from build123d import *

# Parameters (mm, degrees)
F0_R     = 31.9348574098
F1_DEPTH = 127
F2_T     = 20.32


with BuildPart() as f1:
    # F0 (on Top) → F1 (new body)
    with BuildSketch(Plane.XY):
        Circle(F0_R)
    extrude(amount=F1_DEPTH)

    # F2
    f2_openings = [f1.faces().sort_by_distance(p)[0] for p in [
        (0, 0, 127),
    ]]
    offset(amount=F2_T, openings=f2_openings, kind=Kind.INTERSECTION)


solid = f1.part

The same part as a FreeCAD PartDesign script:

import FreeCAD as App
import Part
import Sketcher
Q = App.Units.Quantity


def faces_at(feature, points):
    """Names of the faces that lie closest to the given points."""
    faces = feature.Shape.Faces
    near = lambda p: min(range(len(faces)), key=lambda i: faces[i].distToShape(Part.Vertex(*p))[0])
    return sorted({f"Face{near(p) + 1}" for p in points})

doc = App.newDocument("Part")
body = doc.addObject("PartDesign::Body", "Body")

sketch1 = body.newObject("Sketcher::SketchObject", "Sketch")
sketch1.AttachmentSupport = (doc.getObject("XY_Plane"), [""])
sketch1.MapMode = "FlatFace"
sketch1.addGeometry(Part.Circle(App.Vector(0, 0, 0), App.Vector(0, 0, 1), 32), False)
sketch1.addConstraint(Sketcher.Constraint("Coincident", 0, 3, -1, 1))
sketch1.addConstraint(Sketcher.Constraint("Diameter", 0, 63.869715))
pad1 = body.newObject("PartDesign::Pad", "Pad")
pad1.Profile = sketch1
pad1.Length = Q("5 in")
doc.recompute()

thickness = body.newObject("PartDesign::Thickness", "Thickness")
thickness.Base = (pad1, faces_at(pad1, [(0, 0, 127)]))
thickness.Value = Q("0.8 in")
thickness.Reversed = False
thickness.Join = "Intersection"

doc.recompute()
